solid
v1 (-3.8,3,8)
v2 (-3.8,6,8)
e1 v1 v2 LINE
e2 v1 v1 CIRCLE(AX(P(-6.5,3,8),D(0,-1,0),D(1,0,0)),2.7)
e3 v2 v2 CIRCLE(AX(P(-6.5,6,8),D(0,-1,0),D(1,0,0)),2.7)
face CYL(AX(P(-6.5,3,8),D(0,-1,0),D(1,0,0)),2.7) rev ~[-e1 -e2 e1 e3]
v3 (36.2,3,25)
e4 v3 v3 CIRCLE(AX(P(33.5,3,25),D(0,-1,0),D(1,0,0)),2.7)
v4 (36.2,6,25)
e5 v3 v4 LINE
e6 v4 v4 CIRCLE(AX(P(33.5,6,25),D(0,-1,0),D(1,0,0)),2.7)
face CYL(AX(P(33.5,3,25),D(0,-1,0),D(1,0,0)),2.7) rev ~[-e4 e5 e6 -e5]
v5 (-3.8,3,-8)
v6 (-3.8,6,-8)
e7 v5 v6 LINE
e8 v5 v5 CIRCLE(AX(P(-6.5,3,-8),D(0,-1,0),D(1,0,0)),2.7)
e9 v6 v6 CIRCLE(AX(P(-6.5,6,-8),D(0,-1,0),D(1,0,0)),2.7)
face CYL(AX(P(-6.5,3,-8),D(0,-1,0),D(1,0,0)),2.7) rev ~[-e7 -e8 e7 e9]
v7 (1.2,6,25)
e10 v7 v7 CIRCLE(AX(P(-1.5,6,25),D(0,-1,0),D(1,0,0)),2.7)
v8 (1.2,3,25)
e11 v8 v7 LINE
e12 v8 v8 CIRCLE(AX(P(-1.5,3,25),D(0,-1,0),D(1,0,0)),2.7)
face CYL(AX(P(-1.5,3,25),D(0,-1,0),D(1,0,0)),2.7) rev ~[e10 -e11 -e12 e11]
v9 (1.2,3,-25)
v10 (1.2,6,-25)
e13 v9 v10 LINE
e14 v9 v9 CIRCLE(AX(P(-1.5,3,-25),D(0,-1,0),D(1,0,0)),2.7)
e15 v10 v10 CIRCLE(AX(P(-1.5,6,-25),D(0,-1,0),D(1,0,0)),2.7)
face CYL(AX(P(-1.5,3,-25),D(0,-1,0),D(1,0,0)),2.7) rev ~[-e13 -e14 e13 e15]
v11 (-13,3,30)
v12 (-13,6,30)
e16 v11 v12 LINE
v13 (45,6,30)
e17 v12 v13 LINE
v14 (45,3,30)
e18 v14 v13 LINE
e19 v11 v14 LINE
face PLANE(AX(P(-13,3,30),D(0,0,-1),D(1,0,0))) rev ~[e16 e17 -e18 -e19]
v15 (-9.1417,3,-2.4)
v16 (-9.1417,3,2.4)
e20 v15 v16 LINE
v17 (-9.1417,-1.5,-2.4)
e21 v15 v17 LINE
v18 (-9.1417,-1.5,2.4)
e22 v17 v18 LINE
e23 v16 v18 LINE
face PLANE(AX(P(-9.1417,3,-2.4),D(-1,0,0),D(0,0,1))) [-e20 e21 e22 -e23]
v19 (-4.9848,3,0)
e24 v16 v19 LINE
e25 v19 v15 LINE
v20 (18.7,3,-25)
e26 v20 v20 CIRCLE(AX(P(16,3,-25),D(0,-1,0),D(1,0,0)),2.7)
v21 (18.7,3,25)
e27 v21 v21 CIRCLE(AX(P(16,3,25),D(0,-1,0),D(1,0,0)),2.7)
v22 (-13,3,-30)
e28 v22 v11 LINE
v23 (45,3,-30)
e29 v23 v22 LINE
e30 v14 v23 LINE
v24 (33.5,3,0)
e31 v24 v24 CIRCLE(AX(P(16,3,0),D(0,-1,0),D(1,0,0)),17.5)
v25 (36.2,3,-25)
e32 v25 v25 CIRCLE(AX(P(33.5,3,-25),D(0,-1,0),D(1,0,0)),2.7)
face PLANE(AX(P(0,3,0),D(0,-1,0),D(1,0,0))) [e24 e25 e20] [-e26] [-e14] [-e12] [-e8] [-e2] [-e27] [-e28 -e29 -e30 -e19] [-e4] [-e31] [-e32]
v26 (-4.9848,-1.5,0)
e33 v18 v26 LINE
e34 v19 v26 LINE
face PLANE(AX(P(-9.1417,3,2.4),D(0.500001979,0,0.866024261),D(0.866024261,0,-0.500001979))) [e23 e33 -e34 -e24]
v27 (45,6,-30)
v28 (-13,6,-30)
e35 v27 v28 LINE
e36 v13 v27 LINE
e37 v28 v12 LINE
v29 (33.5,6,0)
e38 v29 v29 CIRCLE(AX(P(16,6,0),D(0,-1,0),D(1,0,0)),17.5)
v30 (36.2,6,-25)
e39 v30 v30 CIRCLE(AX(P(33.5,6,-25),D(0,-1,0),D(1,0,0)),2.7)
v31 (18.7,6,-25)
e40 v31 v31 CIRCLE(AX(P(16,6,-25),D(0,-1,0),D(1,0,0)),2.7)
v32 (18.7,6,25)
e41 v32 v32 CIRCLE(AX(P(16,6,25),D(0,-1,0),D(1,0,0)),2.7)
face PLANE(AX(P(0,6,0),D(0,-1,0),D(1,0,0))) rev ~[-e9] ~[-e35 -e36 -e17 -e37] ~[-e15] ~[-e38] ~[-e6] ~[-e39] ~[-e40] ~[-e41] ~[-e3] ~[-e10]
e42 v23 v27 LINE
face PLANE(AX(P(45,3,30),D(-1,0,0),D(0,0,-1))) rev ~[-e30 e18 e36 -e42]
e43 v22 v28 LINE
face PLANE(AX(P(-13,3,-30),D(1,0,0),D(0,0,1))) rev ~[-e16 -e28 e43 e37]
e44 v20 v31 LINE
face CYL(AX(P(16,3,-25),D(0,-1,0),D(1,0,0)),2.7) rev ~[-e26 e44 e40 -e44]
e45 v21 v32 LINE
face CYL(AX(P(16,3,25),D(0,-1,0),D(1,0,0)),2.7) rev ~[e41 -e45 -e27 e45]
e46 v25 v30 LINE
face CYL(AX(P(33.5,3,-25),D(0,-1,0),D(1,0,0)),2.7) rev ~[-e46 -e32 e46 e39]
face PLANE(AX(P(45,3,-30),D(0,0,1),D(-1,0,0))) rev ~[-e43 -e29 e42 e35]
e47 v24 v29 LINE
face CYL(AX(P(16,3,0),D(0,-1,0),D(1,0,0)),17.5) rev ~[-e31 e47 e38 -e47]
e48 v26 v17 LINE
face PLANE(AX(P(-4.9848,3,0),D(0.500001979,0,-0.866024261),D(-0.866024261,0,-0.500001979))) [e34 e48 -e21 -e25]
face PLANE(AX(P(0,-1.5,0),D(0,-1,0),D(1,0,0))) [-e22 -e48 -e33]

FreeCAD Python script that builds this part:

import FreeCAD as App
import Part
import Sketcher

doc = App.newDocument("Part")
body = doc.addObject("PartDesign::Body", "Body")

# Sketch on XZ plane
sketch1 = doc.addObject("Sketcher::SketchObject", "Sketch")
body.addObject(sketch1)
sketch1.AttachmentSupport = (doc.XZ_Plane, [""])
sketch1.MapMode = "FlatFace"
sketch1.AttachmentOffset = App.Placement(App.Vector(0, 0, -3), App.Rotation())
sketch1.addGeometry([
    Part.LineSegment(App.Vector(-13, -30, 0), App.Vector(45, -30, 0)),
    Part.LineSegment(App.Vector(45, -30, 0), App.Vector(45, 30, 0)),
    Part.LineSegment(App.Vector(45, 30, 0), App.Vector(-13, 30, 0)),
    Part.LineSegment(App.Vector(-13, 30, 0), App.Vector(-13, -30, 0)),
], False)
sketch1.addConstraint([
    Sketcher.Constraint("Coincident", 0, 2, 1, 1),
    Sketcher.Constraint("Coincident", 1, 2, 2, 1),
    Sketcher.Constraint("Coincident", 2, 2, 3, 1),
    Sketcher.Constraint("Coincident", 3, 2, 0, 1),
    Sketcher.Constraint("Horizontal", 0),
    Sketcher.Constraint("Vertical", 1),
    Sketcher.Constraint("Horizontal", 2),
    Sketcher.Constraint("Vertical", 3),
    Sketcher.Constraint("DistanceX", 0, 1, 0, 2, 58.0),
    Sketcher.Constraint("DistanceY", 1, 1, 1, 2, 60.0),
    Sketcher.Constraint("DistanceX", -1, 1, 0, 2, 45.0),
    Sketcher.Constraint("DistanceY", 0, 2, -1, 1, 30.0),
])
pad1 = doc.addObject("PartDesign::Pad", "Pad")
body.addObject(pad1)
pad1.Profile = sketch1
pad1.Length = 3
pad1.Reversed = True

# Sketch on XZ plane
sketch2 = doc.addObject("Sketcher::SketchObject", "Sketch001")
body.addObject(sketch2)
sketch2.AttachmentSupport = (doc.XZ_Plane, [""])
sketch2.MapMode = "FlatFace"
sketch2.AttachmentOffset = App.Placement(App.Vector(0, 0, -3), App.Rotation())
sketch2.addGeometry(Part.Circle(App.Vector(16, 0, 0), App.Vector(0, 0, 1), 17.5), False)
sketch2.addConstraint([
    Sketcher.Constraint("PointOnObject", 0, 3, -1),
    Sketcher.Constraint("Diameter", 0, 35.0),
    Sketcher.Constraint("DistanceX", -1, 1, 0, 3, 16.0),
])
pocket1 = doc.addObject("PartDesign::Pocket", "Pocket")
body.addObject(pocket1)
pocket1.Profile = sketch2
pocket1.Length = 3

# Sketch on XZ plane
sketch3 = doc.addObject("Sketcher::SketchObject", "Sketch002")
body.addObject(sketch3)
sketch3.AttachmentSupport = (doc.XZ_Plane, [""])
sketch3.MapMode = "FlatFace"
sketch3.AttachmentOffset = App.Placement(App.Vector(0, 0, -3), App.Rotation())
sketch3.addGeometry([
    Part.Circle(App.Vector(33.5, -25, 0), App.Vector(0, 0, 1), 2.7),  # 0
    Part.Circle(App.Vector(16, -25, 0), App.Vector(0, 0, 1), 2.7),  # 1
    Part.Circle(App.Vector(-1.5, -25, 0), App.Vector(0, 0, 1), 2.7),  # 2
    Part.Circle(App.Vector(-6.5, -8, 0), App.Vector(0, 0, 1), 2.7),  # 3
    Part.Circle(App.Vector(-6.5, 8, 0), App.Vector(0, 0, 1), 2.7),  # 4
    Part.Circle(App.Vector(-1.5, 25, 0), App.Vector(0, 0, 1), 2.7),  # 5
    Part.Circle(App.Vector(16, 25, 0), App.Vector(0, 0, 1), 2.7),  # 6
    Part.Circle(App.Vector(33.5, 25, 0), App.Vector(0, 0, 1), 2.7),  # 7
], False)
sketch3.addConstraint([
    Sketcher.Constraint("Equal", 0, 1),
    Sketcher.Constraint("Equal", 1, 2),
    Sketcher.Constraint("Equal", 2, 3),
    Sketcher.Constraint("Equal", 3, 4),
    Sketcher.Constraint("Equal", 4, 5),
    Sketcher.Constraint("Equal", 5, 6),
    Sketcher.Constraint("Equal", 6, 7),
    Sketcher.Constraint("Symmetric", 3, 3, 4, 3, -1),
    Sketcher.Constraint("Symmetric", 2, 3, 5, 3, -1),
    Sketcher.Constraint("Symmetric", 1, 3, 6, 3, -1),
    Sketcher.Constraint("Symmetric", 0, 3, 7, 3, -1),
    Sketcher.Constraint("Horizontal", 0, 3, 1, 3),
    Sketcher.Constraint("Horizontal", 1, 3, 2, 3),
    Sketcher.Constraint("Diameter", 0, 5.4),
    Sketcher.Constraint("DistanceX", -1, 1, 1, 3, 16.0),
    Sketcher.Constraint("DistanceX", 3, 3, 2, 3, 5.0),
    Sketcher.Constraint("DistanceY", 2, 3, 3, 3, 17.0),
    Sketcher.Constraint("DistanceY", 3, 3, 4, 3, 16.0),
    Sketcher.Constraint("DistanceX", 1, 3, 0, 3, 17.5),
    Sketcher.Constraint("DistanceX", 2, 3, 1, 3, 17.5),
])
pocket2 = doc.addObject("PartDesign::Pocket", "Pocket001")
body.addObject(pocket2)
pocket2.Profile = sketch3
pocket2.Length = 30

# Sketch on XZ plane
sketch4 = doc.addObject("Sketcher::SketchObject", "Sketch003")
body.addObject(sketch4)
sketch4.AttachmentSupport = (doc.XZ_Plane, [""])
sketch4.MapMode = "FlatFace"
sketch4.AttachmentOffset = App.Placement(App.Vector(0, 0, -3), App.Rotation())
sketch4.addGeometry([
    Part.LineSegment(App.Vector(-9.1417, 2.4, 0), App.Vector(-9.1417, -2.4, 0)),
    Part.LineSegment(App.Vector(-9.1417, -2.4, 0), App.Vector(-4.9848, 0, 0)),
    Part.LineSegment(App.Vector(-4.9848, 0, 0), App.Vector(-9.1417, 2.4, 0)),
], False)
sketch4.addConstraint([
    Sketcher.Constraint("Coincident", 0, 2, 1, 1),
    Sketcher.Constraint("Coincident", 1, 2, 2, 1),
    Sketcher.Constraint("Coincident", 2, 2, 0, 1),
    Sketcher.Constraint("Vertical", 0),
    Sketcher.Constraint("PointOnObject", 1, 2, -1),
    Sketcher.Constraint("Equal", 1, 2),
    Sketcher.Constraint("DistanceY", 0, 2, 0, 1, 4.8),
    Sketcher.Constraint("Distance", 1, 4.8),
    Sketcher.Constraint("DistanceX", 0, 2, -1, 1, 9.1417),
])
pad2 = doc.addObject("PartDesign::Pad", "Pad001")
body.addObject(pad2)
pad2.Profile = sketch4
pad2.Length = 4.5

doc.recompute()
